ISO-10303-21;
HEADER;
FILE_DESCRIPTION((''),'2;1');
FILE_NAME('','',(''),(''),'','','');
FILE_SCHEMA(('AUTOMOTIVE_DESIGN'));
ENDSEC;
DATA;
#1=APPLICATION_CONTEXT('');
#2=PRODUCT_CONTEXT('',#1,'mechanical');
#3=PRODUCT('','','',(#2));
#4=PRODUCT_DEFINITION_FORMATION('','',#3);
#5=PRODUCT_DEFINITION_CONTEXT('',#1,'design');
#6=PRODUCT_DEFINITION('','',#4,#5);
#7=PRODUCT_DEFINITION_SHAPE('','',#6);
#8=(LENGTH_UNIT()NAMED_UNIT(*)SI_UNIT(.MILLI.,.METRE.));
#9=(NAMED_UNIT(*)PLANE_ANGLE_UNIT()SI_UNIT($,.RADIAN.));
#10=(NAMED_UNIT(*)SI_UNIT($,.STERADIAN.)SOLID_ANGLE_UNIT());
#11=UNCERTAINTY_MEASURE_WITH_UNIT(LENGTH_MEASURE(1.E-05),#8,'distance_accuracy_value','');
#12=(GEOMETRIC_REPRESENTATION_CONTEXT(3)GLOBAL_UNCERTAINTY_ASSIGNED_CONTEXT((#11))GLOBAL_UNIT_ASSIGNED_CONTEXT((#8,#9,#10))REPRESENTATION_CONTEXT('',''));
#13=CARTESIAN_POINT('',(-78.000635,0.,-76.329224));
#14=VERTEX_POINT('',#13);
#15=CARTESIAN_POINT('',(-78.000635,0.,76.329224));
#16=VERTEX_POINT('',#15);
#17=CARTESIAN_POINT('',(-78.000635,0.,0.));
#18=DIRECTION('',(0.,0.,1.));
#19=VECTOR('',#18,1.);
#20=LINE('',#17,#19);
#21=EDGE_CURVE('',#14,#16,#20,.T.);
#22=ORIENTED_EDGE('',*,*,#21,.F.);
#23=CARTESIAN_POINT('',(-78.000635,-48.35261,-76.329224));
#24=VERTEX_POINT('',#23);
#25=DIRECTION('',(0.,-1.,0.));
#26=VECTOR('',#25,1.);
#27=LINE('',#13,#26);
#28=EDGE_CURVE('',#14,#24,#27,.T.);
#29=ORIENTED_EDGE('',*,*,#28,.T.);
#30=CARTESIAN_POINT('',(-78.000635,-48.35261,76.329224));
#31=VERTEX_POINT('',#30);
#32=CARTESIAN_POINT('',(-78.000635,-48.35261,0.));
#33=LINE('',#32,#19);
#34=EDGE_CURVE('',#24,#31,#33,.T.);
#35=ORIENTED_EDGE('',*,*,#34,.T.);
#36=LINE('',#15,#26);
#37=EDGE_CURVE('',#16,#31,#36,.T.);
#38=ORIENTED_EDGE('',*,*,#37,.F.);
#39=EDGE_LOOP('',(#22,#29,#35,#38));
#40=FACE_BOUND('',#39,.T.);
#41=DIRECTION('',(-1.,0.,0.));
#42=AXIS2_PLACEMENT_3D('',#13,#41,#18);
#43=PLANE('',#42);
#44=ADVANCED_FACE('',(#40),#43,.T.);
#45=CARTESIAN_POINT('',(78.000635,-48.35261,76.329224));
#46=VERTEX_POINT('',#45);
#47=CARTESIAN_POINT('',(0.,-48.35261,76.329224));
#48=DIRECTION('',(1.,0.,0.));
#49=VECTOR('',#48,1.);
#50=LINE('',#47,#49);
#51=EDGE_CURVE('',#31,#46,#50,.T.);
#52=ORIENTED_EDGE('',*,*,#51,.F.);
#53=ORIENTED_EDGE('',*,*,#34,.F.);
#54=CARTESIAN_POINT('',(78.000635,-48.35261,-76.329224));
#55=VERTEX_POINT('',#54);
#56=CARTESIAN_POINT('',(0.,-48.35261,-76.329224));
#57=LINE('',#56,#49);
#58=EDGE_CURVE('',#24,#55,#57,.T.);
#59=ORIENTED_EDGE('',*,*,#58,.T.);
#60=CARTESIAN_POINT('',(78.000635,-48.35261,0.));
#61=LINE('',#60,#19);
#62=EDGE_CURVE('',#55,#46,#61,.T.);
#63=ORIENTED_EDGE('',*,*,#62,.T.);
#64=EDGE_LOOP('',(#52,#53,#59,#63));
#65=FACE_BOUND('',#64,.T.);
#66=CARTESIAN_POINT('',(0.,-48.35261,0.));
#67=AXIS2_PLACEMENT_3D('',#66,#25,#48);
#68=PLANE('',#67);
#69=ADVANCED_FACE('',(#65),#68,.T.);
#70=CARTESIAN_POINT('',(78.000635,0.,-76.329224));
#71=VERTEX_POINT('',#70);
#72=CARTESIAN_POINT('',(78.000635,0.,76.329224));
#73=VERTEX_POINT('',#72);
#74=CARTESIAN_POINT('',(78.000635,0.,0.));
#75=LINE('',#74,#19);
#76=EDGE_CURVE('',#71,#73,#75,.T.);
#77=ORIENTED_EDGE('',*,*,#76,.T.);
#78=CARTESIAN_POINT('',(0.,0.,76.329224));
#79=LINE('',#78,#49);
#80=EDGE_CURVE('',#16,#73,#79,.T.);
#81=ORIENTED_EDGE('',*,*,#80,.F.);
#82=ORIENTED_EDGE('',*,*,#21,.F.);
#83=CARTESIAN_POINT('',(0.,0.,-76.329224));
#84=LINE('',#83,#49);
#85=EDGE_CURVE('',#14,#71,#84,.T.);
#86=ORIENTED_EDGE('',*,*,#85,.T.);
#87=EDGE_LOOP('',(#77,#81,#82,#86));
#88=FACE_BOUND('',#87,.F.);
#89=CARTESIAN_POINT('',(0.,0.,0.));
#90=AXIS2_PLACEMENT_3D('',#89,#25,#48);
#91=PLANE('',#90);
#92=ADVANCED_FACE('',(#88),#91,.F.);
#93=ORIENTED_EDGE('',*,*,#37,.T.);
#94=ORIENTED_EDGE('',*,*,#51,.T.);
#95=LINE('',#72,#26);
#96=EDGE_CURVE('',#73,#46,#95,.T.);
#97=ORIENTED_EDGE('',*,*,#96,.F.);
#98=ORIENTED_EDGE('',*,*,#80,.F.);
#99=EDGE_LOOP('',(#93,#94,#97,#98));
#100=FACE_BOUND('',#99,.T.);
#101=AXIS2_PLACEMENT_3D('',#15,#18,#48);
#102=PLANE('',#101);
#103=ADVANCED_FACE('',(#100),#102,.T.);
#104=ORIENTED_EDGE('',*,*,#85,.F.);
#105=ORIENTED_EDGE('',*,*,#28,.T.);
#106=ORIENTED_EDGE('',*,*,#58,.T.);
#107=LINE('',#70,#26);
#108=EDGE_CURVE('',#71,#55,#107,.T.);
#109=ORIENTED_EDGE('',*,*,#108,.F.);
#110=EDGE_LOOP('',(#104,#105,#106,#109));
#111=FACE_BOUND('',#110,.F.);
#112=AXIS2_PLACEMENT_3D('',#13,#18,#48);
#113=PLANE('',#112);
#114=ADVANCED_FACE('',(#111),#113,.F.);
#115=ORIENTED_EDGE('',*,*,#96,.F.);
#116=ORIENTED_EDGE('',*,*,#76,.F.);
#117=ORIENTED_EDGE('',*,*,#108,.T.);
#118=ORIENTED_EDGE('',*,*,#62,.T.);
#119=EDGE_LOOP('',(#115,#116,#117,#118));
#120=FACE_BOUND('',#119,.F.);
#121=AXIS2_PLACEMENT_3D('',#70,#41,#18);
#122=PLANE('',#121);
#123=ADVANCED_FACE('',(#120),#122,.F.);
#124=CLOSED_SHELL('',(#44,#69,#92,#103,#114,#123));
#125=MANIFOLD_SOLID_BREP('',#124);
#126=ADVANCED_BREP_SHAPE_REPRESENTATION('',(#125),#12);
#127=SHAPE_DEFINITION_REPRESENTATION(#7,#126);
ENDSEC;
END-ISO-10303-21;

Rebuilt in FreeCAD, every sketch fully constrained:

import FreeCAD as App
import Part
import Sketcher
Q = App.Units.Quantity


def add_polygon(sketch, points):
    """Adds a closed chain of lines whose ends are joined by coincident constraints."""
    first, n = sketch.GeometryCount, len(points)
    for a, b in zip(points, points[1:] + points[:1]):
        sketch.addGeometry(Part.LineSegment(App.Vector(*a, 0), App.Vector(*b, 0)), False)
    for i in range(n):
        sketch.addConstraint(Sketcher.Constraint("Coincident", first + i, 2, first + (i + 1) % n, 1))

doc = App.newDocument("Part")
body = doc.addObject("PartDesign::Body", "Body")

# Sketch on XZ plane
sketch1 = body.newObject("Sketcher::SketchObject", "Sketch")
sketch1.AttachmentSupport = (doc.getObject("XZ_Plane"), [""])
sketch1.MapMode = "FlatFace"
add_polygon(sketch1, [(-78, 76), (-78, -76), (78, -76), (78, 76)])  # lines 0-3
sketch1.addConstraint([
    Sketcher.Constraint("Vertical", 0),
    Sketcher.Constraint("Horizontal", 1),
    Sketcher.Constraint("Vertical", 2),
    Sketcher.Constraint("Horizontal", 3),
    Sketcher.Constraint("Symmetric", 0, 2, 2, 2, -1, 1),
    Sketcher.Constraint("DistanceX", 1, 1, 1, 2, Q("156.00127 mm")),
    Sketcher.Constraint("DistanceY", 0, 2, 0, 1, Q("152.658448 mm")),
])
pad1 = body.newObject("PartDesign::Pad", "Pad")
pad1.Profile = sketch1
pad1.Length = 48.35261

doc.recompute()
